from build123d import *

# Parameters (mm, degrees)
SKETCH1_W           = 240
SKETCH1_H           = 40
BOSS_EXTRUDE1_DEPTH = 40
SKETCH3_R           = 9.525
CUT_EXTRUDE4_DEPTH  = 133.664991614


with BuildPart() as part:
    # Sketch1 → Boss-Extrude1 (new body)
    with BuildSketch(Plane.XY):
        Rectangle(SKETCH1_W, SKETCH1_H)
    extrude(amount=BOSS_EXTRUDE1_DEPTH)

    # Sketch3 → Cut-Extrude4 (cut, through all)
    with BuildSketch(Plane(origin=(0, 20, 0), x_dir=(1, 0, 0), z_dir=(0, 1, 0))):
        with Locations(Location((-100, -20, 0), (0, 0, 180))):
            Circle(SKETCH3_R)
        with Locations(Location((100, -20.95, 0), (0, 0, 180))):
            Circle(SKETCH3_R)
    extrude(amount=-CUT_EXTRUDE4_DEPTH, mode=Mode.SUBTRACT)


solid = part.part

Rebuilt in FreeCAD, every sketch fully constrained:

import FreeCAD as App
import Part
import Sketcher

doc = App.newDocument("Part")
body = doc.addObject("PartDesign::Body", "Body")

sketch1 = doc.addObject("Sketcher::SketchObject", "Sketch")
body.addObject(sketch1)
sketch1.AttachmentSupport = (doc.XY_Plane, [""])
sketch1.MapMode = "FlatFace"
sketch1.addGeometry(Part.LineSegment(App.Vector(-120, 20, 0), App.Vector(-120, -20, 0)), False)
sketch1.addGeometry(Part.LineSegment(App.Vector(-120, -20, 0), App.Vector(120, -20, 0)), False)
sketch1.addGeometry(Part.LineSegment(App.Vector(120, -20, 0), App.Vector(120, 20, 0)), False)
sketch1.addGeometry(Part.LineSegment(App.Vector(120, 20, 0), App.Vector(-120, 20, 0)), False)
sketch1.addConstraint(Sketcher.Constraint("Coincident", 0, 2, 1, 1))
sketch1.addConstraint(Sketcher.Constraint("Coincident", 1, 2, 2, 1))
sketch1.addConstraint(Sketcher.Constraint("Coincident", 2, 2, 3, 1))
sketch1.addConstraint(Sketcher.Constraint("Coincident", 3, 2, 0, 1))
sketch1.addConstraint(Sketcher.Constraint("Vertical", 0))
sketch1.addConstraint(Sketcher.Constraint("Horizontal", 1))
sketch1.addConstraint(Sketcher.Constraint("Vertical", 2))
sketch1.addConstraint(Sketcher.Constraint("Horizontal", 3))
sketch1.addConstraint(Sketcher.Constraint("Symmetric", 0, 2, 2, 2, -1, 1))
sketch1.addConstraint(Sketcher.Constraint("DistanceX", 1, 1, 1, 2, 240.0))
sketch1.addConstraint(Sketcher.Constraint("DistanceY", 0, 2, 0, 1, 40.0))
pad1 = doc.addObject("PartDesign::Pad", "Pad")
body.addObject(pad1)
pad1.Profile = sketch1
pad1.Length = 40

sketch2 = doc.addObject("Sketcher::SketchObject", "Sketch001")
body.addObject(sketch2)
sketch2.AttachmentSupport = (doc.XZ_Plane, [""])
sketch2.MapMode = "FlatFace"
sketch2.AttachmentOffset = App.Placement(App.Vector(0, 0, -20), App.Rotation())
sketch2.addGeometry(Part.Circle(App.Vector(-100, 20, 0), App.Vector(0, 0, 1), 10), False)
sketch2.addGeometry(Part.Circle(App.Vector(100, 21, 0), App.Vector(0, 0, 1), 10), False)
sketch2.addConstraint(Sketcher.Constraint("Equal", 0, 1))
sketch2.addConstraint(Sketcher.Constraint("Diameter", 0, 19.05))
sketch2.addConstraint(Sketcher.Constraint("DistanceX", 0, 3, -1, 1, 100.0))
sketch2.addConstraint(Sketcher.Constraint("DistanceY", -1, 1, 0, 3, 20.0))
sketch2.addConstraint(Sketcher.Constraint("DistanceX", -1, 1, 1, 3, 100.0))
sketch2.addConstraint(Sketcher.Constraint("DistanceY", -1, 1, 1, 3, 20.95))
pocket1 = doc.addObject("PartDesign::Pocket", "Pocket")
body.addObject(pocket1)
pocket1.Profile = sketch2
pocket1.Type = "ThroughAll"
pocket1.Reversed = True

doc.recompute()
